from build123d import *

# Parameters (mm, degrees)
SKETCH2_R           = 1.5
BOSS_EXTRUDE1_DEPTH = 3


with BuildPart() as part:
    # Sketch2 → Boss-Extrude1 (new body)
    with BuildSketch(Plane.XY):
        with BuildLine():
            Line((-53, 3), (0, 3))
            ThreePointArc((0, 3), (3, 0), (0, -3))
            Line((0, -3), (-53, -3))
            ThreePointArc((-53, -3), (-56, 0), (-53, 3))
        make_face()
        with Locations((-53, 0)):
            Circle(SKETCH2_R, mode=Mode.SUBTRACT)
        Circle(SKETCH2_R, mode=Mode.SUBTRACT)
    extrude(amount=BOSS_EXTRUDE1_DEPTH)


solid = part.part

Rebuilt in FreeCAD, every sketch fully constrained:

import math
import FreeCAD as App
import Part
import Sketcher

V = App.Vector

doc = App.newDocument("Part")
body = doc.addObject("PartDesign::Body", "Body")

# Sketch on XY plane
sketch1 = body.newObject("Sketcher::SketchObject", "Sketch")
sketch1.AttachmentSupport = (doc.getObject("XY_Plane"), [""])
sketch1.MapMode = "FlatFace"
sketch1.addGeometry([
    Part.LineSegment(V(0, 3, 0), V(-53, 3, 0)),  # 0
    Part.ArcOfCircle(Part.Circle(V(-53, 0, 0), V(0, 0, 1), 3), math.radians(90), math.radians(270)),  # 1
    Part.LineSegment(V(-53, -3, 0), V(0, -3, 0)),  # 2
    Part.ArcOfCircle(Part.Circle(V(0, 0, 0), V(0, 0, 1), 3), math.radians(-90), math.radians(90)),  # 3
    Part.Circle(V(0, 0, 0), V(0, 0, 1), 1.5),  # 4
    Part.Circle(V(-53, 0, 0), V(0, 0, 1), 1.5),  # 5
], False)
sketch1.addConstraint([
    Sketcher.Constraint("Tangent", 0, 2, 1, 1),
    Sketcher.Constraint("Tangent", 1, 2, 2, 1),
    Sketcher.Constraint("Tangent", 2, 2, 3, 1),
    Sketcher.Constraint("Tangent", 3, 2, 0, 1),
    Sketcher.Constraint("Horizontal", 0),
    Sketcher.Constraint("Horizontal", 2),
    Sketcher.Constraint("Coincident", 3, 3, -1, 1),
    Sketcher.Constraint("Coincident", 4, 3, -1, 1),
    Sketcher.Constraint("Coincident", 5, 3, 1, 3),
    Sketcher.Constraint("Equal", 4, 5),
    Sketcher.Constraint("Diameter", 4, 3.0),
    Sketcher.Constraint("Radius", 1, 3.0),
    Sketcher.Constraint("DistanceX", 0, 2, 0, 1, 53.0),
])
pad1 = body.newObject("PartDesign::Pad", "Pad")
pad1.Profile = sketch1
pad1.Length = 3

doc.recompute()
